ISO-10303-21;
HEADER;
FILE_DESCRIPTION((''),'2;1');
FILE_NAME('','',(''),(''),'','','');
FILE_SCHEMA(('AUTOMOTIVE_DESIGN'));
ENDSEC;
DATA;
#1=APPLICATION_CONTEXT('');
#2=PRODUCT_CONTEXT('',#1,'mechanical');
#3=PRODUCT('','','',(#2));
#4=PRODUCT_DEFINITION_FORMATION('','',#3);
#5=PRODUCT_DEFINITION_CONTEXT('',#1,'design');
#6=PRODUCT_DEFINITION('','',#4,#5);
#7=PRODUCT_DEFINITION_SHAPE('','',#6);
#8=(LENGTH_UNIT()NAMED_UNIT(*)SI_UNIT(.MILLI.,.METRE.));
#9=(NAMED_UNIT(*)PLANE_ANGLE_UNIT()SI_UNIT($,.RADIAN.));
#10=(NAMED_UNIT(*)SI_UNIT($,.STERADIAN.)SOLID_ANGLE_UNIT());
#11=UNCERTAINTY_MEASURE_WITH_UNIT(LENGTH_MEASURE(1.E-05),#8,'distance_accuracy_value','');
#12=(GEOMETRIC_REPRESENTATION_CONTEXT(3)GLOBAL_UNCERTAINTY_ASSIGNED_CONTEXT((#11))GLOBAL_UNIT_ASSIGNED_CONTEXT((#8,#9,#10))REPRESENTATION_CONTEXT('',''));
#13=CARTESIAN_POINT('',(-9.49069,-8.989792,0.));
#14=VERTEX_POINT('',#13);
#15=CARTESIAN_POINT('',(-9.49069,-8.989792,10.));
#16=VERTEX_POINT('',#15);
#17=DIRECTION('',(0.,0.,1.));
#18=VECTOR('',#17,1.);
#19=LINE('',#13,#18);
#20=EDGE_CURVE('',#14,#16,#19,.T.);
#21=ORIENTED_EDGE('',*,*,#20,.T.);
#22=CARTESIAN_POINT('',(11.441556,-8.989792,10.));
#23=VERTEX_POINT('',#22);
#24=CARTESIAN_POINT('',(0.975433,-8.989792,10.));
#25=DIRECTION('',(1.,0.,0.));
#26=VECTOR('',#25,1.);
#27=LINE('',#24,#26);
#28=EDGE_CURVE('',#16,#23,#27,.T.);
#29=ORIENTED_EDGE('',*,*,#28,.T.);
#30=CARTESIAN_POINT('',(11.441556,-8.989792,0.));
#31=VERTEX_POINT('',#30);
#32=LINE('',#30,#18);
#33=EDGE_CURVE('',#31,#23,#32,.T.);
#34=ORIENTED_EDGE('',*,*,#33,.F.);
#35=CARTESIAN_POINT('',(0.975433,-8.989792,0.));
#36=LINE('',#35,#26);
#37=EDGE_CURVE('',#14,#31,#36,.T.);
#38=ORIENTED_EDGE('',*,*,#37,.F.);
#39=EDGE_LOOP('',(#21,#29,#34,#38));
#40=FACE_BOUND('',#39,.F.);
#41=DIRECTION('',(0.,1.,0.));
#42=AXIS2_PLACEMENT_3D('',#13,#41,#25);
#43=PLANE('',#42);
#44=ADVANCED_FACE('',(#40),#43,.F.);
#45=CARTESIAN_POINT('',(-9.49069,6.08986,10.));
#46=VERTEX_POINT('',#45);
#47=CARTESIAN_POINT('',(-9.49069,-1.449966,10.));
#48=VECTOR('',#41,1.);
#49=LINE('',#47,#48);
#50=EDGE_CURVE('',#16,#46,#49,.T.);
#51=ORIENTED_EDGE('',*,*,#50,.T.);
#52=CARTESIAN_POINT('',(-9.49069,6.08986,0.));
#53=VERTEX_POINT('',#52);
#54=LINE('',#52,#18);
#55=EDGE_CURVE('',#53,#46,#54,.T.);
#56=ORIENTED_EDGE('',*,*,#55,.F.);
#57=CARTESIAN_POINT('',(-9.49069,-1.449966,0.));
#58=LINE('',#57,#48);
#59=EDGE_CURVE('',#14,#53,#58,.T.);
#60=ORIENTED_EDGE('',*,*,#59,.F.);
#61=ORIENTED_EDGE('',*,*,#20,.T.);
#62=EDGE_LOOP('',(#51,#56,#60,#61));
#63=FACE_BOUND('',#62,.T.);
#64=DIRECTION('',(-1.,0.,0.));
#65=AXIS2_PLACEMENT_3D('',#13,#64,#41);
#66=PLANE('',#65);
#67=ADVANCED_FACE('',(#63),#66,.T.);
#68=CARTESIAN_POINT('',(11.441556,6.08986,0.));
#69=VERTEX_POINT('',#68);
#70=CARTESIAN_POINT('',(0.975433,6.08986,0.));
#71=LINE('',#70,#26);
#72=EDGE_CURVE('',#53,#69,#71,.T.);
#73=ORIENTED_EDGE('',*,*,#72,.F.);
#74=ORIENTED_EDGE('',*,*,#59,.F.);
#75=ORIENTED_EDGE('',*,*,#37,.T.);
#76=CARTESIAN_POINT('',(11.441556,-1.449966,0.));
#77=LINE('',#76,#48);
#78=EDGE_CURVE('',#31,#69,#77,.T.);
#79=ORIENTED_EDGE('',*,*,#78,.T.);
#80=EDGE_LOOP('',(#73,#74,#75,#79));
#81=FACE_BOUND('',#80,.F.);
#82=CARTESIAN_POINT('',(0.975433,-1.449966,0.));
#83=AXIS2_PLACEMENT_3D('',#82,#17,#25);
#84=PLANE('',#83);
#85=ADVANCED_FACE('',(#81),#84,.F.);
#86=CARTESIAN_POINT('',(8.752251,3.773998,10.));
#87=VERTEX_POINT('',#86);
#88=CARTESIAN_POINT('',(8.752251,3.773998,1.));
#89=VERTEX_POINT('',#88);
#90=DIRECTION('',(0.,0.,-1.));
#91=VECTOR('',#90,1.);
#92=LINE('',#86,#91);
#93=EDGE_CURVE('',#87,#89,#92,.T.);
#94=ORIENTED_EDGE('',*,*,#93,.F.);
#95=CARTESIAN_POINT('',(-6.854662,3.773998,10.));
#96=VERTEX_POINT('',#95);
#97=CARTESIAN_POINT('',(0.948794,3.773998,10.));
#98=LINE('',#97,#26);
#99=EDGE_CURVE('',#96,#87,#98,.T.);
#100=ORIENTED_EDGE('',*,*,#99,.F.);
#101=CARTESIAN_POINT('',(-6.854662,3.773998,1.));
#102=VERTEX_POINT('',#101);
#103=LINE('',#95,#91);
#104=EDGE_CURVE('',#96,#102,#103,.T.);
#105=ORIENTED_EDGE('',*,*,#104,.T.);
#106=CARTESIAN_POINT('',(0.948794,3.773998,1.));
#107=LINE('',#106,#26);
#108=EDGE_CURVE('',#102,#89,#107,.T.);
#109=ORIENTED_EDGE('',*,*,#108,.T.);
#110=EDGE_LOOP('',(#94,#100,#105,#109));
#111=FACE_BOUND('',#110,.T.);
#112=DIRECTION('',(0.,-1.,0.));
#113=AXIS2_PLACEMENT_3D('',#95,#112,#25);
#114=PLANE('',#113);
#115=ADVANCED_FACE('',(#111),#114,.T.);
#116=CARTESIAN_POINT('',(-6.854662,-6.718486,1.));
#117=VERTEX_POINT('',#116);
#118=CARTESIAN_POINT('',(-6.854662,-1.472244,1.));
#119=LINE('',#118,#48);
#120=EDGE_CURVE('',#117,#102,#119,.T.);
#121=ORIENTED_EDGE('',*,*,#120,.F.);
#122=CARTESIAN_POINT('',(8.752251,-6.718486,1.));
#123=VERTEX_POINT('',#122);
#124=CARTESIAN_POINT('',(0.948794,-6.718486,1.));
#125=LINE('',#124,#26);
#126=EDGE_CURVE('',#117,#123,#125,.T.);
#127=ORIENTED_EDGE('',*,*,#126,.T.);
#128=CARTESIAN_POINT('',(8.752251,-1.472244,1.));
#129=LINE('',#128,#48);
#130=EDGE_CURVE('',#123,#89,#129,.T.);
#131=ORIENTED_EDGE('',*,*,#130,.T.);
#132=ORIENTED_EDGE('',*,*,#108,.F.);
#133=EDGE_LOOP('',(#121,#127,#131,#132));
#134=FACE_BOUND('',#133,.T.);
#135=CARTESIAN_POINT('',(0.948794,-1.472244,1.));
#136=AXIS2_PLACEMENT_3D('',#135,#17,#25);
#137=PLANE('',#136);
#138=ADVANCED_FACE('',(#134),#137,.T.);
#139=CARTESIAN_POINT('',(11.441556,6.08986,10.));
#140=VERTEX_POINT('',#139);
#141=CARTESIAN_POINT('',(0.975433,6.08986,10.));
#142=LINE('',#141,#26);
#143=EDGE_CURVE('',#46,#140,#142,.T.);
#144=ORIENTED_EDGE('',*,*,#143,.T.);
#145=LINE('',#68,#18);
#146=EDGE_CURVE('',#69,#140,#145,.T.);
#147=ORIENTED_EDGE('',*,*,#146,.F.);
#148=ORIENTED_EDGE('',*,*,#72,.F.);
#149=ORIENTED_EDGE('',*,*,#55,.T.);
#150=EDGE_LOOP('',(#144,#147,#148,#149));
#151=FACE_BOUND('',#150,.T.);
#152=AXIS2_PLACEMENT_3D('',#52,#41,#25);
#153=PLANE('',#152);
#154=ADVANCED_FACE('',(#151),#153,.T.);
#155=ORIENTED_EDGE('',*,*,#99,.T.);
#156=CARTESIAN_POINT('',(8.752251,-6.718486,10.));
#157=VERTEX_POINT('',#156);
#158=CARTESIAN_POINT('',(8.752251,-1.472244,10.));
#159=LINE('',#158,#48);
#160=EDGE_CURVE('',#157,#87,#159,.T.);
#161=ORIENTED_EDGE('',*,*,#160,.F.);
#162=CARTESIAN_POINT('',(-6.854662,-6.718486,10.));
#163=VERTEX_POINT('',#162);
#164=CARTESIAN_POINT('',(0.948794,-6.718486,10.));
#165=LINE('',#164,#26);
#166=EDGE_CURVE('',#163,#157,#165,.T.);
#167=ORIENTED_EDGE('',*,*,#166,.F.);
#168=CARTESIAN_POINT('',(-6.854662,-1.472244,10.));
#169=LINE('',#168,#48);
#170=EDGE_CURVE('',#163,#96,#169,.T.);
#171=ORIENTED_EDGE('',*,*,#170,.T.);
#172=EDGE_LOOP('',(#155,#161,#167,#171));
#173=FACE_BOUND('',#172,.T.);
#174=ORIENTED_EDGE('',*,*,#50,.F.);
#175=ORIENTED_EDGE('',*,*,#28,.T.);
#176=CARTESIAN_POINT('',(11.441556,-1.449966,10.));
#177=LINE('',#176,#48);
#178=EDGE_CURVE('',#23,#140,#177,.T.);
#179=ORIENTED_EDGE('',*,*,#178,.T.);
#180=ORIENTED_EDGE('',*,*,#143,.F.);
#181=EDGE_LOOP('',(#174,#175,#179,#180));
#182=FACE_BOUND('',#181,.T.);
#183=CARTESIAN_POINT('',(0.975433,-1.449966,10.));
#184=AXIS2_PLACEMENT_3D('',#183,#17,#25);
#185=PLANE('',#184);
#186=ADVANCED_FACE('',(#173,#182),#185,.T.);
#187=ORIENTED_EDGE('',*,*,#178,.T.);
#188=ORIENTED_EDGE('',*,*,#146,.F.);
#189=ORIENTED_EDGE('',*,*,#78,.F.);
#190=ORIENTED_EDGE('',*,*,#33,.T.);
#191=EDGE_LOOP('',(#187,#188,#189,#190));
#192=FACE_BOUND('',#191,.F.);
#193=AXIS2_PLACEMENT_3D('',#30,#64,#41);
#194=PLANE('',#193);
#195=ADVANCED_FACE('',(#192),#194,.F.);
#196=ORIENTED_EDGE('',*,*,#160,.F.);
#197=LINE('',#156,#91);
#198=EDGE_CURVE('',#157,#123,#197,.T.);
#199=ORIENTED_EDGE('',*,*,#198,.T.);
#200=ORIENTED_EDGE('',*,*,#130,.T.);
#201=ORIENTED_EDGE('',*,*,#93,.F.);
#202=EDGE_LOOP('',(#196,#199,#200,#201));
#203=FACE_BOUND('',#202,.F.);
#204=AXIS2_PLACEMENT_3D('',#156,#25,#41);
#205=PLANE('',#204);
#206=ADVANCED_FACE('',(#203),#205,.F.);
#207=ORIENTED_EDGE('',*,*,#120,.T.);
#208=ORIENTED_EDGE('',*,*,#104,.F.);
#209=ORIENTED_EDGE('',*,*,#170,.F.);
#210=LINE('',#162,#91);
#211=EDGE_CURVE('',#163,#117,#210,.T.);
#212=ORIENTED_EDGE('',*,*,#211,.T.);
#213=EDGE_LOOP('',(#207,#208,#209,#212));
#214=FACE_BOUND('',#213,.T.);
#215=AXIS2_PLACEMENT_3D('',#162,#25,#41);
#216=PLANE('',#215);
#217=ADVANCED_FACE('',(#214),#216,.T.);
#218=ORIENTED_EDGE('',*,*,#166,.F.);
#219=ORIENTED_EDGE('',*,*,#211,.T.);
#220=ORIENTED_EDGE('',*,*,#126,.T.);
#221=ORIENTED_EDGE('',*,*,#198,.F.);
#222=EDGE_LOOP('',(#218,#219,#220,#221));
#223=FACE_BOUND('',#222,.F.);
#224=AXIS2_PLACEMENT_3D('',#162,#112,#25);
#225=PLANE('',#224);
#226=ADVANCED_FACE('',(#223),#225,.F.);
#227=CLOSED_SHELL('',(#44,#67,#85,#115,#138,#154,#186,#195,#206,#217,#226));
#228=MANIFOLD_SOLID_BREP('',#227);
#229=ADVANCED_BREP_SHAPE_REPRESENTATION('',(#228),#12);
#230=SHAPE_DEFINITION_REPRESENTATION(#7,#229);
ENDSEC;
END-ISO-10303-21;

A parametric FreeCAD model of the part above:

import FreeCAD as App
import Part
import Sketcher
from FreeCAD import Vector

doc = App.newDocument("Part")
body = doc.addObject("PartDesign::Body", "Body")

# Sketch on XY plane
sketch1 = body.newObject("Sketcher::SketchObject", "Sketch")
sketch1.AttachmentSupport = (doc.getObject("XY_Plane"), [""])
sketch1.MapMode = "FlatFace"
sketch1.addGeometry(Part.LineSegment(Vector(-9, 6, 0), Vector(-9, -9, 0)), False)
sketch1.addGeometry(Part.LineSegment(Vector(-9, -9, 0), Vector(11, -9, 0)), False)
sketch1.addGeometry(Part.LineSegment(Vector(11, -9, 0), Vector(11, 6, 0)), False)
sketch1.addGeometry(Part.LineSegment(Vector(11, 6, 0), Vector(-9, 6, 0)), False)
sketch1.addConstraint(Sketcher.Constraint("Coincident", 0, 2, 1, 1))
sketch1.addConstraint(Sketcher.Constraint("Coincident", 1, 2, 2, 1))
sketch1.addConstraint(Sketcher.Constraint("Coincident", 2, 2, 3, 1))
sketch1.addConstraint(Sketcher.Constraint("Coincident", 3, 2, 0, 1))
sketch1.addConstraint(Sketcher.Constraint("Vertical", 0))
sketch1.addConstraint(Sketcher.Constraint("Horizontal", 1))
sketch1.addConstraint(Sketcher.Constraint("Vertical", 2))
sketch1.addConstraint(Sketcher.Constraint("Horizontal", 3))
sketch1.addConstraint(Sketcher.Constraint("DistanceY", 0, 2, 0, 1, 15.079651))
sketch1.addConstraint(Sketcher.Constraint("DistanceX", 1, 1, 1, 2, 20.932246))
sketch1.addConstraint(Sketcher.Constraint("DistanceX", 0, 2, -1, 1, 9.49069))
sketch1.addConstraint(Sketcher.Constraint("DistanceY", 0, 2, -1, 1, 8.989792))
pad1 = body.newObject("PartDesign::Pad", "Pad")
pad1.Profile = sketch1
pad1.Length = 10

# Sketch on XY plane
sketch2 = body.newObject("Sketcher::SketchObject", "Sketch001")
sketch2.AttachmentSupport = (doc.getObject("XY_Plane"), [""])
sketch2.MapMode = "FlatFace"
sketch2.AttachmentOffset = App.Placement(Vector(0, 0, 10), App.Rotation())
sketch2.addGeometry(Part.LineSegment(Vector(-7, 4, 0), Vector(-7, -7, 0)), False)
sketch2.addGeometry(Part.LineSegment(Vector(-7, -7, 0), Vector(9, -7, 0)), False)
sketch2.addGeometry(Part.LineSegment(Vector(9, -7, 0), Vector(9, 4, 0)), False)
sketch2.addGeometry(Part.LineSegment(Vector(9, 4, 0), Vector(-7, 4, 0)), False)
sketch2.addConstraint(Sketcher.Constraint("Coincident", 0, 2, 1, 1))
sketch2.addConstraint(Sketcher.Constraint("Coincident", 1, 2, 2, 1))
sketch2.addConstraint(Sketcher.Constraint("Coincident", 2, 2, 3, 1))
sketch2.addConstraint(Sketcher.Constraint("Coincident", 3, 2, 0, 1))
sketch2.addConstraint(Sketcher.Constraint("Vertical", 0))
sketch2.addConstraint(Sketcher.Constraint("Horizontal", 1))
sketch2.addConstraint(Sketcher.Constraint("Vertical", 2))
sketch2.addConstraint(Sketcher.Constraint("Horizontal", 3))
sketch2.addConstraint(Sketcher.Constraint("DistanceY", -1, 1, 2, 2, 3.773998))
sketch2.addConstraint(Sketcher.Constraint("DistanceX", 1, 1, 1, 2, 15.606913))
sketch2.addConstraint(Sketcher.Constraint("DistanceY", 0, 2, 0, 1, 10.492484))
sketch2.addConstraint(Sketcher.Constraint("DistanceX", -1, 1, 1, 2, 8.752251))
pocket1 = body.newObject("PartDesign::Pocket", "Pocket")
pocket1.Profile = sketch2
pocket1.Length = 9

doc.recompute()
